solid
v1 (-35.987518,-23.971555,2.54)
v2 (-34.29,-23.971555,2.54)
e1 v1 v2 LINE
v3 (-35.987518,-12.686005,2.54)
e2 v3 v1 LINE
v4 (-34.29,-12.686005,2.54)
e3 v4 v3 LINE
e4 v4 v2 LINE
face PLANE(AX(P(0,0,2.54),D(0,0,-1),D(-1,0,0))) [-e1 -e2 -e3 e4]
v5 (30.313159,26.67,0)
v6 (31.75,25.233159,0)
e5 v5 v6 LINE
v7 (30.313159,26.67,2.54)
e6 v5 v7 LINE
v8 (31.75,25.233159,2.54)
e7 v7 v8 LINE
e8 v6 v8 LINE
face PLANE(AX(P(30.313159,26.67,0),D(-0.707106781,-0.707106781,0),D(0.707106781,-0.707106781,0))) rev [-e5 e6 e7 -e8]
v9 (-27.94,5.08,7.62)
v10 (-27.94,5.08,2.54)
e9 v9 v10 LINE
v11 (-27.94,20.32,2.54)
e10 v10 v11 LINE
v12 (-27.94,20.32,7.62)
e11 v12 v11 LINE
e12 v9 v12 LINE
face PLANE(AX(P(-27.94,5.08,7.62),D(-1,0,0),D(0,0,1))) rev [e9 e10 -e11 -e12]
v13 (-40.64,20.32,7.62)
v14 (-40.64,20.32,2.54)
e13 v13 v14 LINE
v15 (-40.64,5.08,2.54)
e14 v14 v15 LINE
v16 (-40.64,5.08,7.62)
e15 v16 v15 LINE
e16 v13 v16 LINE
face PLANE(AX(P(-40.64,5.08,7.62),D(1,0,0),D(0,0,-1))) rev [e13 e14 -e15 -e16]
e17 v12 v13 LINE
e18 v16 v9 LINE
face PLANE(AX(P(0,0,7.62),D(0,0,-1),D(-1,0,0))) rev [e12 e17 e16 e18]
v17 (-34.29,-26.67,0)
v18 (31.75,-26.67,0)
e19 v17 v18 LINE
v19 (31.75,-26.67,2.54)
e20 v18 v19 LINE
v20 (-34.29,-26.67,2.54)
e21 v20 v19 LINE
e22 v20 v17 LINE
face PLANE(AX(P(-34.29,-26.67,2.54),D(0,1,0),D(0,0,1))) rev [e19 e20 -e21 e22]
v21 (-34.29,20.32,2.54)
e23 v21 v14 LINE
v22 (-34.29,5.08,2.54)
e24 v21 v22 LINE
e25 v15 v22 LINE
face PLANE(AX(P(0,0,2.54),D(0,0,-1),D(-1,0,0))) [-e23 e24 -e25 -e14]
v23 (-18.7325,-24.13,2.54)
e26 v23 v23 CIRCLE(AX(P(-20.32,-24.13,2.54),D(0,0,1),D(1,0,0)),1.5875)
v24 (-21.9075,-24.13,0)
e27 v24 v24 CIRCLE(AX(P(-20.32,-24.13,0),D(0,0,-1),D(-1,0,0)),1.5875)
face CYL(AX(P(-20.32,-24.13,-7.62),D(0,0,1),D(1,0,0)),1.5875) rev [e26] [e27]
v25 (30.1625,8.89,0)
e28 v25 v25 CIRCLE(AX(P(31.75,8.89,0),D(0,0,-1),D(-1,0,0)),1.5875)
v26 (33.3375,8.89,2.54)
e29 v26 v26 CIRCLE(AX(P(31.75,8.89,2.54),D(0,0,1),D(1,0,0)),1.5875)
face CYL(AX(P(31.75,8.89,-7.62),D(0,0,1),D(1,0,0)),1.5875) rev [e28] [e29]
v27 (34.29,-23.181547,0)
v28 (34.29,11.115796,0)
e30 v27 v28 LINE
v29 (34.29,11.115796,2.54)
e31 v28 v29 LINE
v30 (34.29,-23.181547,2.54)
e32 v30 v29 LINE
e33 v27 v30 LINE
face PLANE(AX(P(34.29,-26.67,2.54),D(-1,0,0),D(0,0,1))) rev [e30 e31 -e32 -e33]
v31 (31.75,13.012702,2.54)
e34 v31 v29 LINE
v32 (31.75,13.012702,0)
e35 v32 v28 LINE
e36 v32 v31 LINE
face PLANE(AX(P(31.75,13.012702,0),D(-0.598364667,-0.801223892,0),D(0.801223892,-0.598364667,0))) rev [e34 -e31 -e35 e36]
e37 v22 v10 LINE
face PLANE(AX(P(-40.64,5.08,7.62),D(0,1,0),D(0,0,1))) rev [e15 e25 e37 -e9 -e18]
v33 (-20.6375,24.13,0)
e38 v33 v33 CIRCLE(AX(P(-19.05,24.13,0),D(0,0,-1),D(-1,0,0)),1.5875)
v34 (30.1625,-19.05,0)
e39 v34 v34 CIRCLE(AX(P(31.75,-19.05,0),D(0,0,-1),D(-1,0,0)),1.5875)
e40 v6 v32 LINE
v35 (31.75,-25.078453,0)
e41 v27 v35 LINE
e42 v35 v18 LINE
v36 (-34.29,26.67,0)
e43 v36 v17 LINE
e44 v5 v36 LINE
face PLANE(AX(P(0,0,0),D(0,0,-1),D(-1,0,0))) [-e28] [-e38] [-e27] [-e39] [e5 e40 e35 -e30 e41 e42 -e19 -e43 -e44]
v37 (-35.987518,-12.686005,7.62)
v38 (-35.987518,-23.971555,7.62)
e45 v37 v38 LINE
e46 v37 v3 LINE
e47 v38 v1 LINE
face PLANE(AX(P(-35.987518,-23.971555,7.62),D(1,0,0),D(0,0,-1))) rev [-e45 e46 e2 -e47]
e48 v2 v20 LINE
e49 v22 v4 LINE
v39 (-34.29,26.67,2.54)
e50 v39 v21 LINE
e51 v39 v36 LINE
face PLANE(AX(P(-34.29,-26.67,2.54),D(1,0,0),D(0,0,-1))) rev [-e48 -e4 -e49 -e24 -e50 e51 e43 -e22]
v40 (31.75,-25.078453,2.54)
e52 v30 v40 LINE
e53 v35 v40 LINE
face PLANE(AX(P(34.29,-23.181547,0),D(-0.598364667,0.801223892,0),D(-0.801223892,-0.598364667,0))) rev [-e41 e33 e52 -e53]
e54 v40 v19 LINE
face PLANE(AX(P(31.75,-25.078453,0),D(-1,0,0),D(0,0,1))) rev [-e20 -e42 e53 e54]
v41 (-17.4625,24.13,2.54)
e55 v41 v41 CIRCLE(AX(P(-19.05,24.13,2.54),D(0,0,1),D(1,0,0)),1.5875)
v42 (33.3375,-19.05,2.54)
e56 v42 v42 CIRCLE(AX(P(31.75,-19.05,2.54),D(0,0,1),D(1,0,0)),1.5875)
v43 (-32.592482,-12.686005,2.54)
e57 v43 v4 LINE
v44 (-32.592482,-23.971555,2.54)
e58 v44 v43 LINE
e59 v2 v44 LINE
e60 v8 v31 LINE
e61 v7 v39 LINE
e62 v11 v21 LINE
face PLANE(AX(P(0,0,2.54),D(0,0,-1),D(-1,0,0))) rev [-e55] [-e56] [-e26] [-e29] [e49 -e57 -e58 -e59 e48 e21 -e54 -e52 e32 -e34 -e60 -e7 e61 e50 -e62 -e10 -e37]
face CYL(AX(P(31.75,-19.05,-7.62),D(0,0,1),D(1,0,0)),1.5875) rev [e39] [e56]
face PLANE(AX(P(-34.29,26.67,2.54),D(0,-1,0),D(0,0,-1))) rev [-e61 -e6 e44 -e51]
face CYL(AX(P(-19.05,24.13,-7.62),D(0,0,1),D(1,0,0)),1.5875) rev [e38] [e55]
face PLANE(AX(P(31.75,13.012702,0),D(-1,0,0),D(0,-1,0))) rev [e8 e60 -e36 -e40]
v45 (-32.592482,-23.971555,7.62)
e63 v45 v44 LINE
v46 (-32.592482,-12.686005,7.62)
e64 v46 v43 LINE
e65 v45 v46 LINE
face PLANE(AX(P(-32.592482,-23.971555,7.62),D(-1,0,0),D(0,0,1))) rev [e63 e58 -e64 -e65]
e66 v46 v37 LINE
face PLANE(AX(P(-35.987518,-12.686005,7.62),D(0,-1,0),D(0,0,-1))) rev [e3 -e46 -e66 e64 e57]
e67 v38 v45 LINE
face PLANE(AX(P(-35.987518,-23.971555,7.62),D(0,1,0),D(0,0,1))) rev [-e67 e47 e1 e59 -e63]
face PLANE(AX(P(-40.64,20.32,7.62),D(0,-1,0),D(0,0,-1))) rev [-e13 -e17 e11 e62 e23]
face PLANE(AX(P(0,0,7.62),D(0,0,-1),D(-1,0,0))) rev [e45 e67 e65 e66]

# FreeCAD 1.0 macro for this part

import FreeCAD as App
import Part
import Sketcher
Q = App.Units.Quantity


def add_polygon(sketch, points):
    """Adds a closed chain of lines whose ends are joined by coincident constraints."""
    first, n = sketch.GeometryCount, len(points)
    for a, b in zip(points, points[1:] + points[:1]):
        sketch.addGeometry(Part.LineSegment(App.Vector(*a, 0), App.Vector(*b, 0)), False)
    for i in range(n):
        sketch.addConstraint(Sketcher.Constraint("Coincident", first + i, 2, first + (i + 1) % n, 1))

doc = App.newDocument("Part")
body = doc.addObject("PartDesign::Body", "Body")

# Sketch on XY plane
sketch1 = doc.addObject("Sketcher::SketchObject", "Sketch")
body.addObject(sketch1)
sketch1.AttachmentSupport = (doc.XY_Plane, [""])
sketch1.MapMode = "FlatFace"
add_polygon(sketch1, [(-34, 27), (-34, -27), (34, -27), (34, 27)])  # lines 0-3
sketch1.addConstraint(Sketcher.Constraint("Vertical", 0))
sketch1.addConstraint(Sketcher.Constraint("Horizontal", 1))
sketch1.addConstraint(Sketcher.Constraint("Vertical", 2))
sketch1.addConstraint(Sketcher.Constraint("Horizontal", 3))
sketch1.addConstraint(Sketcher.Constraint("Symmetric", 0, 2, 2, 2, -1, 1))
sketch1.addConstraint(Sketcher.Constraint("DistanceX", 1, 1, 1, 2, Q("2.7 in")))
sketch1.addConstraint(Sketcher.Constraint("DistanceY", 0, 2, 0, 1, Q("2.1 in")))
pad1 = doc.addObject("PartDesign::Pad", "Pad")
body.addObject(pad1)
pad1.Profile = sketch1
pad1.Length = Q("0.1 in")

# Sketch on XY plane
sketch2 = doc.addObject("Sketcher::SketchObject", "Sketch001")
body.addObject(sketch2)
sketch2.AttachmentSupport = (doc.XY_Plane, [""])
sketch2.MapMode = "FlatFace"
sketch2.AttachmentOffset = App.Placement(App.Vector(0, 0, 0.1 * 25.4), App.Rotation())
add_polygon(sketch2, [(-40.6, 20.3), (-40.6, 5.1), (-27.9, 5.1), (-27.9, 20.3)])  # lines 0-3
add_polygon(sketch2, [(-36, -12.7), (-36, -24), (-32.6, -24), (-32.6, -12.7)])  # lines 4-7
sketch2.addConstraint(Sketcher.Constraint("Vertical", 0))
sketch2.addConstraint(Sketcher.Constraint("Horizontal", 1))
sketch2.addConstraint(Sketcher.Constraint("Vertical", 2))
sketch2.addConstraint(Sketcher.Constraint("Horizontal", 3))
sketch2.addConstraint(Sketcher.Constraint("Vertical", 4))
sketch2.addConstraint(Sketcher.Constraint("Horizontal", 5))
sketch2.addConstraint(Sketcher.Constraint("Vertical", 6))
sketch2.addConstraint(Sketcher.Constraint("Horizontal", 7))
sketch2.addConstraint(Sketcher.Constraint("DistanceX", 1, 1, 1, 2, Q("0.5 in")))
sketch2.addConstraint(Sketcher.Constraint("DistanceY", 0, 2, 0, 1, Q("0.6 in")))
sketch2.addConstraint(Sketcher.Constraint("DistanceX", 0, 2, -1, 1, Q("1.6 in")))
sketch2.addConstraint(Sketcher.Constraint("DistanceY", -1, 1, 0, 2, Q("0.2 in")))
sketch2.addConstraint(Sketcher.Constraint("DistanceY", 4, 2, 4, 1, Q("11.28555 mm")))
sketch2.addConstraint(Sketcher.Constraint("DistanceX", 5, 1, 5, 2, Q("3.395036 mm")))
sketch2.addConstraint(Sketcher.Constraint("DistanceX", 4, 2, -1, 1, Q("35.987518 mm")))
sketch2.addConstraint(Sketcher.Constraint("DistanceY", 4, 2, -1, 1, Q("23.971555 mm")))
pad2 = doc.addObject("PartDesign::Pad", "Pad001")
body.addObject(pad2)
pad2.Profile = sketch2
pad2.Length = Q("0.2 in")

# Sketch on XY plane
sketch3 = doc.addObject("Sketcher::SketchObject", "Sketch002")
body.addObject(sketch3)
sketch3.AttachmentSupport = (doc.XY_Plane, [""])
sketch3.MapMode = "FlatFace"
sketch3.AttachmentOffset = App.Placement(App.Vector(0, 0, 0.1 * 25.4), App.Rotation())
sketch3.addGeometry(Part.Circle(App.Vector(-19.1, 24.1, 0), App.Vector(0, 0, 1), 1.6), False)
sketch3.addGeometry(Part.Circle(App.Vector(-20.3, -24.1, 0), App.Vector(0, 0, 1), 1.6), False)
sketch3.addGeometry(Part.Circle(App.Vector(31.8, 8.9, 0), App.Vector(0, 0, 1), 1.6), False)
sketch3.addGeometry(Part.Circle(App.Vector(31.8, -19.1, 0), App.Vector(0, 0, 1), 1.6), False)
sketch3.addConstraint(Sketcher.Constraint("Equal", 0, 1))
sketch3.addConstraint(Sketcher.Constraint("Equal", 1, 2))
sketch3.addConstraint(Sketcher.Constraint("Equal", 2, 3))
sketch3.addConstraint(Sketcher.Constraint("Vertical", 2, 3, 3, 3))
sketch3.addConstraint(Sketcher.Constraint("Diameter", 0, Q("0.125 in")))
sketch3.addConstraint(Sketcher.Constraint("DistanceX", 0, 3, 2, 3, Q("2 in")))
sketch3.addConstraint(Sketcher.Constraint("DistanceX", 1, 3, -1, 1, Q("0.8 in")))
sketch3.addConstraint(Sketcher.Constraint("DistanceY", 1, 3, 0, 3, Q("1.9 in")))
sketch3.addConstraint(Sketcher.Constraint("DistanceY", 2, 3, 0, 3, Q("0.6 in")))
sketch3.addConstraint(Sketcher.Constraint("DistanceY", 3, 3, 2, 3, Q("1.1 in")))
sketch3.addConstraint(Sketcher.Constraint("DistanceX", 0, 3, -1, 1, Q("0.75 in")))
sketch3.addConstraint(Sketcher.Constraint("DistanceY", -1, 1, 0, 3, Q("0.95 in")))
pocket1 = doc.addObject("PartDesign::Pocket", "Pocket")
body.addObject(pocket1)
pocket1.Profile = sketch3
pocket1.Length = Q("0.4 in")

# Sketch on XY plane
sketch4 = doc.addObject("Sketcher::SketchObject", "Sketch003")
body.addObject(sketch4)
sketch4.AttachmentSupport = (doc.XY_Plane, [""])
sketch4.MapMode = "FlatFace"
sketch4.AttachmentOffset = App.Placement(App.Vector(0, 0, 0.1 * 25.4), App.Rotation())
add_polygon(sketch4, [(30.3, 26.7), (31.8, 25.2), (31.8, 13), (34.3, 11.1), (34.3, 26.7)])  # lines 0-4
add_polygon(sketch4, [(34.3, -23.2), (31.8, -25.1), (31.8, -26.7), (34.3, -26.7)])  # lines 5-8
sketch4.addConstraint(Sketcher.Constraint("Vertical", 1))
sketch4.addConstraint(Sketcher.Constraint("Vertical", 3))
sketch4.addConstraint(Sketcher.Constraint("Horizontal", 4))
sketch4.addConstraint(Sketcher.Constraint("Vertical", 6))
sketch4.addConstraint(Sketcher.Constraint("Horizontal", 7))
sketch4.addConstraint(Sketcher.Constraint("Vertical", 8))
sketch4.addConstraint(Sketcher.Constraint("Symmetric", 3, 2, 7, 2, -1))
sketch4.addConstraint(Sketcher.Constraint("Vertical", 1, 2, 5, 2))
sketch4.addConstraint(Sketcher.Constraint("Equal", 2, 5))
sketch4.addConstraint(Sketcher.Constraint("DistanceX", 7, 1, 7, 2, Q("0.1 in")))
sketch4.addConstraint(Sketcher.Constraint("Angle", 0, Q("-45 deg")))
sketch4.addConstraint(Sketcher.Constraint("DistanceY", 6, 2, 4, 2, Q("2.1 in")))
sketch4.addConstraint(Sketcher.Constraint("Distance", 0, Q("0.08 in")))
sketch4.addConstraint(Sketcher.Constraint("DistanceX", -1, 1, 0, 2, Q("1.25 in")))
sketch4.addConstraint(Sketcher.Constraint("Distance", 2, Q("3.17015 mm")))
sketch4.addConstraint(Sketcher.Constraint("DistanceY", 1, 2, 1, 1, Q("12.220457 mm")))
sketch4.addConstraint(Sketcher.Constraint("DistanceY", 6, 2, 6, 1, Q("1.591547 mm")))
pocket2 = doc.addObject("PartDesign::Pocket", "Pocket001")
body.addObject(pocket2)
pocket2.Profile = sketch4
pocket2.Type = "ThroughAll"

doc.recompute()
